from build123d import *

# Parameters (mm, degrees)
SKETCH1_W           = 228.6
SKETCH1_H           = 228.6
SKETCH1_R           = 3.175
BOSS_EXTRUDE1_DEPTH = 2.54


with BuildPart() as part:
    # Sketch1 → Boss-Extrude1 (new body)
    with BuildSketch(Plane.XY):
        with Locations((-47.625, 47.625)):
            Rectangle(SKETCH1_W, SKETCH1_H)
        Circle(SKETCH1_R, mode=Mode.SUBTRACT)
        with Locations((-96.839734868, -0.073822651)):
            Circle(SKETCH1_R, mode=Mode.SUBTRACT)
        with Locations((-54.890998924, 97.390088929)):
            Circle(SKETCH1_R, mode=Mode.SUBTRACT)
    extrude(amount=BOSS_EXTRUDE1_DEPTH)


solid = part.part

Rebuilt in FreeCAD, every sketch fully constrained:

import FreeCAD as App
import Part
import Sketcher
Q = App.Units.Quantity


def add_polygon(sketch, points):
    """Adds a closed chain of lines whose ends are joined by coincident constraints."""
    first, n = sketch.GeometryCount, len(points)
    for a, b in zip(points, points[1:] + points[:1]):
        sketch.addGeometry(Part.LineSegment(App.Vector(*a, 0), App.Vector(*b, 0)), False)
    for i in range(n):
        sketch.addConstraint(Sketcher.Constraint("Coincident", first + i, 2, first + (i + 1) % n, 1))

doc = App.newDocument("Part")
params = doc.addObject("Spreadsheet::Sheet", "Params")
for row, (alias, value) in enumerate([
    ("sketch1_diameter", "0.25 in"),
    ("sketch1_width", "9 in"),
    ("pad1_length", "0.1 in"),
], start=1):
    params.set(f"A{row}", alias)
    params.set(f"B{row}", "=" + value)
    params.setAlias(f"B{row}", alias)

body = doc.addObject("PartDesign::Body", "Body")

sketch1 = body.newObject("Sketcher::SketchObject", "Sketch")
sketch1.AttachmentSupport = (doc.getObject("XY_Plane"), [""])
sketch1.MapMode = "FlatFace"
add_polygon(sketch1, [(-161.9, 161.9), (-161.9, -66.7), (66.7, -66.7), (66.7, 161.9)])
sketch1.addGeometry(Part.Circle(App.Vector(-96.8, -0.1, 0), App.Vector(0, 0, 1), 3.2), False)
sketch1.addGeometry(Part.Circle(App.Vector(0, 0, 0), App.Vector(0, 0, 1), 3.2), False)
sketch1.addGeometry(Part.Circle(App.Vector(-54.9, 97.4, 0), App.Vector(0, 0, 1), 3.2), False)
sketch1.addConstraint(Sketcher.Constraint("Vertical", 0))
sketch1.addConstraint(Sketcher.Constraint("Horizontal", 1))
sketch1.addConstraint(Sketcher.Constraint("Vertical", 2))
sketch1.addConstraint(Sketcher.Constraint("Horizontal", 3))
sketch1.addConstraint(Sketcher.Constraint("Coincident", 5, 3, -1, 1))
sketch1.addConstraint(Sketcher.Constraint("Equal", 4, 5))
sketch1.addConstraint(Sketcher.Constraint("Equal", 5, 6))
sketch1.addConstraint(Sketcher.Constraint("Equal", 3, 0))
sketch1.addConstraint(Sketcher.Constraint("Diameter", 4, Q("0.25 in")))
sketch1.addConstraint(Sketcher.Constraint("DistanceX", 1, 1, 1, 2, Q("9 in")))
sketch1.addConstraint(Sketcher.Constraint("DistanceX", 0, 2, -1, 1, Q("6.375 in")))
sketch1.addConstraint(Sketcher.Constraint("DistanceY", 0, 2, -1, 1, Q("2.625 in")))
sketch1.addConstraint(Sketcher.Constraint("DistanceX", 6, 3, -1, 1, Q("54.890999 mm")))
sketch1.addConstraint(Sketcher.Constraint("DistanceY", -1, 1, 6, 3, Q("97.390089 mm")))
sketch1.addConstraint(Sketcher.Constraint("DistanceY", 4, 3, 6, 3, Q("97.463912 mm")))
sketch1.addConstraint(Sketcher.Constraint("DistanceX", 4, 3, -1, 1, Q("96.839735 mm")))
sketch1.setExpression("Constraints[12]", "Params.sketch1_diameter")
sketch1.setExpression("Constraints[13]", "Params.sketch1_width")
pad1 = body.newObject("PartDesign::Pad", "Pad")
pad1.Profile = sketch1
pad1.setExpression("Length", "Params.pad1_length")

doc.recompute()
